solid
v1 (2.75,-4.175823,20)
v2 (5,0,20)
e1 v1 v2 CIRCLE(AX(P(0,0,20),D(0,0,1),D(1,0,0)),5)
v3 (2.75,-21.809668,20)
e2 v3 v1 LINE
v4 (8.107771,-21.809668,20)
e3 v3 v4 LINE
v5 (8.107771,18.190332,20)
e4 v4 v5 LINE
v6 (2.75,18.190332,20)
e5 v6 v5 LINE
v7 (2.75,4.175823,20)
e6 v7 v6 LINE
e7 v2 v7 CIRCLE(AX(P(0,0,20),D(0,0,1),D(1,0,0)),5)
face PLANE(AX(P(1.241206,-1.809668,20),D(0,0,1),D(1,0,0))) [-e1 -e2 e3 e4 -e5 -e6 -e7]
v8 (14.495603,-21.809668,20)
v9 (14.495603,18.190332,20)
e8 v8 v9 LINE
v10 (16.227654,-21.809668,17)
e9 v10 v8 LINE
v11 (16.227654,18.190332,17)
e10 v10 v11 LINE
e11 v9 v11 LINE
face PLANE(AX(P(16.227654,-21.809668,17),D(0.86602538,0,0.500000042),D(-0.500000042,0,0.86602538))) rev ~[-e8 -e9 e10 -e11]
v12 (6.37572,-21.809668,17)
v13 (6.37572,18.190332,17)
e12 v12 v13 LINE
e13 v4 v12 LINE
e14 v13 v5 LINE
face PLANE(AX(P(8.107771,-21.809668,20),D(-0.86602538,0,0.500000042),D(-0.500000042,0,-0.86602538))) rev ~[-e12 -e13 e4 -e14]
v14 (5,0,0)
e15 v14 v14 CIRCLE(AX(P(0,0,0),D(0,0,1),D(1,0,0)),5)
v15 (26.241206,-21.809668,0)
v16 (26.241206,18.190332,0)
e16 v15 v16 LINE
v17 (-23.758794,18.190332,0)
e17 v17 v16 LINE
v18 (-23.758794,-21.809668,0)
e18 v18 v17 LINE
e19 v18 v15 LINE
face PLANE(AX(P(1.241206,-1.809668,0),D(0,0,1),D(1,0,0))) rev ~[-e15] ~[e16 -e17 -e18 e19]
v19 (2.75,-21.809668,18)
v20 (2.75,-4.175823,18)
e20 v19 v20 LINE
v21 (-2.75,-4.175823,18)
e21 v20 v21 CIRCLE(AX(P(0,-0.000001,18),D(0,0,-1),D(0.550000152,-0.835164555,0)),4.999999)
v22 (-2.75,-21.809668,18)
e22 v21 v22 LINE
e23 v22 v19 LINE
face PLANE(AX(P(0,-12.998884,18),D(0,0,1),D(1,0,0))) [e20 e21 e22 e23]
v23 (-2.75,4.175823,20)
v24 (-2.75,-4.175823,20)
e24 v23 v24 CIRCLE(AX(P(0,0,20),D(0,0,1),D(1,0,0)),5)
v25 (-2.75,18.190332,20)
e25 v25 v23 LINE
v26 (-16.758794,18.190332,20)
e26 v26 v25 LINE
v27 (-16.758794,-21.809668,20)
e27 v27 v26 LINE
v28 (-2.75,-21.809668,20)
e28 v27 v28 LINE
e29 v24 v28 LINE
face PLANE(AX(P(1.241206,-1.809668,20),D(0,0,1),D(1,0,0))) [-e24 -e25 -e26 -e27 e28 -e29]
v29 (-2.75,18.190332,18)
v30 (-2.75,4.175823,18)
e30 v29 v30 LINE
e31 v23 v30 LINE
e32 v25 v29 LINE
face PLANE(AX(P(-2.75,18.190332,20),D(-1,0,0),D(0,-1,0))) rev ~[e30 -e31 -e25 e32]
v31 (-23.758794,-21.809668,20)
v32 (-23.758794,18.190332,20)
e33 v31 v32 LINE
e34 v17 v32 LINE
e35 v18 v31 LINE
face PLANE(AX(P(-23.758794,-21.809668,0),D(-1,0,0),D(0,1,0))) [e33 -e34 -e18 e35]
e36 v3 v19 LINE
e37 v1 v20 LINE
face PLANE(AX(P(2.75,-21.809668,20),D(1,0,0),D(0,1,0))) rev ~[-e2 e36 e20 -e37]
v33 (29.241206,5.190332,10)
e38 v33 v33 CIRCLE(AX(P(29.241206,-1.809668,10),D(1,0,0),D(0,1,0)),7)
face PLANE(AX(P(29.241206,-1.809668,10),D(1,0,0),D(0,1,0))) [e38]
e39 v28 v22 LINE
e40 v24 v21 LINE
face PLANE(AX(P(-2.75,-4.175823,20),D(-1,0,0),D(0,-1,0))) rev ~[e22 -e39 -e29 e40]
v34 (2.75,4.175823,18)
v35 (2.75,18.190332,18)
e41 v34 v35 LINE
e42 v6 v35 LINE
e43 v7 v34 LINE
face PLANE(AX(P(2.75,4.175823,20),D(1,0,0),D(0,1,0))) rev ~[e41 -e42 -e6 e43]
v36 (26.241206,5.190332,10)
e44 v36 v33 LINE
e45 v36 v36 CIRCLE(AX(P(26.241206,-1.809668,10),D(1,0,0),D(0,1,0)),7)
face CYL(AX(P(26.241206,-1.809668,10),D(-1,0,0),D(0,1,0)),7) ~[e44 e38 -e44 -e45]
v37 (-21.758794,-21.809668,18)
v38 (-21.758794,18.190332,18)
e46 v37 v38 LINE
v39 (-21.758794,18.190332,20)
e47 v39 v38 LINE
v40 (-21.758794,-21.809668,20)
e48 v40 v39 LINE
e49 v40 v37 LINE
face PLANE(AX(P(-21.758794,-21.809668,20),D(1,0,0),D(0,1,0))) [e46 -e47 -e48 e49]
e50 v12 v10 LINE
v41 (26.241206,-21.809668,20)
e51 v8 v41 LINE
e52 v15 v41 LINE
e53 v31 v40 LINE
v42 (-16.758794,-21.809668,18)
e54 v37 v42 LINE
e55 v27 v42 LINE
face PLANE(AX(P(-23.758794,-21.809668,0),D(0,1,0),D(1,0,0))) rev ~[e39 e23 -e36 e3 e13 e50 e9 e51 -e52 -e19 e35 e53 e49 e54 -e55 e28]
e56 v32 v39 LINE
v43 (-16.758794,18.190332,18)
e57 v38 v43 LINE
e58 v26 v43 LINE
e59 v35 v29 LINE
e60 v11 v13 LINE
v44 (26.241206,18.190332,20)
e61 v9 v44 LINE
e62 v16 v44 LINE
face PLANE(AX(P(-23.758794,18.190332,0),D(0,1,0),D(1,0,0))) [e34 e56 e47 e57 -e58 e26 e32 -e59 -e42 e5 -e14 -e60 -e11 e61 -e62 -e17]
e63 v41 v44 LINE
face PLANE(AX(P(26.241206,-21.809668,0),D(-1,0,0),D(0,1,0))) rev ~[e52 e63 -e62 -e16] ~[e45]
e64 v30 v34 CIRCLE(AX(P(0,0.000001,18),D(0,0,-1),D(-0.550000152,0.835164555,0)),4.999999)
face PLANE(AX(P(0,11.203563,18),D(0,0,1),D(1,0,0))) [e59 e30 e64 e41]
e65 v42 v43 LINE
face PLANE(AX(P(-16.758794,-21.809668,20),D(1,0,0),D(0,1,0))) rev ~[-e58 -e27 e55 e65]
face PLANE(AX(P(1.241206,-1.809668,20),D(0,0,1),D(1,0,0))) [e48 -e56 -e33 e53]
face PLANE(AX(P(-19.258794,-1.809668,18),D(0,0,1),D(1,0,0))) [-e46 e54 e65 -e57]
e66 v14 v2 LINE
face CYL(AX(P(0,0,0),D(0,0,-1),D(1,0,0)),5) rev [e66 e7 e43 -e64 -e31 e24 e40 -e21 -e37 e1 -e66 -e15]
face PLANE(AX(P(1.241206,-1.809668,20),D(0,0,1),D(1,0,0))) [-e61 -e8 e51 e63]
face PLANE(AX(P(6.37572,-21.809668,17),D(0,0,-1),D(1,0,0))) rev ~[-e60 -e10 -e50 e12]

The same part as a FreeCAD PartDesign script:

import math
import FreeCAD as App
import Part
import Sketcher
from FreeCAD import Vector
Q = App.Units.Quantity

doc = App.newDocument("Part")
body = doc.addObject("PartDesign::Body", "Body")

# Sketch on XY plane
sketch1 = doc.addObject("Sketcher::SketchObject", "Sketch")
body.addObject(sketch1)
sketch1.AttachmentSupport = (doc.XY_Plane, [""])
sketch1.MapMode = "FlatFace"
sketch1.addGeometry([
    Part.LineSegment(Vector(-24, 18, 0), Vector(-24, -22, 0)),  # 0
    Part.LineSegment(Vector(-24, -22, 0), Vector(26, -22, 0)),  # 1
    Part.LineSegment(Vector(26, -22, 0), Vector(26, 18, 0)),  # 2
    Part.LineSegment(Vector(26, 18, 0), Vector(-24, 18, 0)),  # 3
    Part.Circle(Vector(0, 0, 0), Vector(0, 0, 1), 5),  # 4
], False)
sketch1.addConstraint([
    Sketcher.Constraint("Coincident", 0, 2, 1, 1),
    Sketcher.Constraint("Coincident", 1, 2, 2, 1),
    Sketcher.Constraint("Coincident", 2, 2, 3, 1),
    Sketcher.Constraint("Coincident", 3, 2, 0, 1),
    Sketcher.Constraint("Vertical", 0),
    Sketcher.Constraint("Horizontal", 1),
    Sketcher.Constraint("Vertical", 2),
    Sketcher.Constraint("Horizontal", 3),
    Sketcher.Constraint("Coincident", 4, 3, -1, 1),
    Sketcher.Constraint("Diameter", 4, 10.0),
    Sketcher.Constraint("DistanceX", 1, 1, 1, 2, 50.0),
    Sketcher.Constraint("DistanceY", 0, 2, 0, 1, 40.0),
    Sketcher.Constraint("DistanceX", 0, 2, -1, 1, 23.758794),
    Sketcher.Constraint("DistanceY", 0, 2, -1, 1, 21.809668),
])
pad1 = doc.addObject("PartDesign::Pad", "Pad")
body.addObject(pad1)
pad1.Profile = sketch1
pad1.Length = 20

# Sketch on XY plane
sketch2 = doc.addObject("Sketcher::SketchObject", "Sketch001")
body.addObject(sketch2)
sketch2.AttachmentSupport = (doc.XY_Plane, [""])
sketch2.MapMode = "FlatFace"
sketch2.AttachmentOffset = App.Placement(Vector(0, 0, 20), App.Rotation())
sketch2.addGeometry([
    Part.LineSegment(Vector(-21.8, 18.2, 0), Vector(-21.8, -21.8, 0)),  # 0
    Part.LineSegment(Vector(-21.8, -21.8, 0), Vector(-16.8, -21.8, 0)),  # 1
    Part.LineSegment(Vector(-16.8, -21.8, 0), Vector(-16.8, 18.2, 0)),  # 2
    Part.LineSegment(Vector(-16.8, 18.2, 0), Vector(-21.8, 18.2, 0)),  # 3
    Part.LineSegment(Vector(-2.8, -4.2, 0), Vector(-2.8, -21.8, 0)),  # 4
    Part.LineSegment(Vector(-2.8, -21.8, 0), Vector(2.8, -21.8, 0)),  # 5
    Part.LineSegment(Vector(2.8, -21.8, 0), Vector(2.8, -4.2, 0)),  # 6
    Part.ArcOfCircle(Part.Circle(Vector(0, 0, 0), Vector(0, 0, 1), 5), math.radians(-123), math.radians(-57)),  # 7
    Part.LineSegment(Vector(2.8, 18.2, 0), Vector(-2.8, 18.2, 0)),  # 8
    Part.LineSegment(Vector(-2.8, 18.2, 0), Vector(-2.8, 4.2, 0)),  # 9
    Part.ArcOfCircle(Part.Circle(Vector(0, 0, 0), Vector(0, 0, 1), 5), math.radians(57), math.radians(123)),  # 10
    Part.LineSegment(Vector(2.8, 4.2, 0), Vector(2.8, 18.2, 0)),  # 11
], False)
sketch2.addConstraint([
    Sketcher.Constraint("Coincident", 0, 2, 1, 1),
    Sketcher.Constraint("Coincident", 1, 2, 2, 1),
    Sketcher.Constraint("Coincident", 2, 2, 3, 1),
    Sketcher.Constraint("Coincident", 3, 2, 0, 1),
    Sketcher.Constraint("Coincident", 4, 2, 5, 1),
    Sketcher.Constraint("Coincident", 5, 2, 6, 1),
    Sketcher.Constraint("Coincident", 6, 2, 7, 2),
    Sketcher.Constraint("Coincident", 7, 1, 4, 1),
    Sketcher.Constraint("Coincident", 8, 2, 9, 1),
    Sketcher.Constraint("Coincident", 9, 2, 10, 2),
    Sketcher.Constraint("Coincident", 10, 1, 11, 1),
    Sketcher.Constraint("Coincident", 11, 2, 8, 1),
    Sketcher.Constraint("Vertical", 0),
    Sketcher.Constraint("Horizontal", 1),
    Sketcher.Constraint("Vertical", 2),
    Sketcher.Constraint("Horizontal", 3),
    Sketcher.Constraint("Vertical", 4),
    Sketcher.Constraint("Horizontal", 5),
    Sketcher.Constraint("Vertical", 6),
    Sketcher.Constraint("Horizontal", 8),
    Sketcher.Constraint("Vertical", 9),
    Sketcher.Constraint("Vertical", 11),
    Sketcher.Constraint("Coincident", 7, 3, -1, 1),
    Sketcher.Constraint("Coincident", 10, 3, -1, 1),
    Sketcher.Constraint("Equal", 7, 10),
    Sketcher.Constraint("Horizontal", 1, 2, 4, 2),
    Sketcher.Constraint("Horizontal", 6, 2, 7, 1),
    Sketcher.Constraint("Horizontal", 3, 2, 8, 2),
    Sketcher.Constraint("Horizontal", 9, 2, 10, 1),
    Sketcher.Constraint("Vertical", 7, 1, 8, 2),
    Sketcher.Constraint("Radius", 7, 4.999999),
    Sketcher.Constraint("DistanceX", 1, 1, 1, 2, 5.0),
    Sketcher.Constraint("DistanceY", 0, 2, 0, 1, 40.0),
    Sketcher.Constraint("DistanceX", 5, 1, 5, 2, 5.5),
    Sketcher.Constraint("DistanceY", 9, 2, 9, 1, 14.014509),
    Sketcher.Constraint("DistanceX", 0, 2, -1, 1, 21.758794),
])
pocket1 = doc.addObject("PartDesign::Pocket", "Pocket")
body.addObject(pocket1)
pocket1.Profile = sketch2
pocket1.Length = 2

# Sketch on XZ plane
sketch3 = doc.addObject("Sketcher::SketchObject", "Sketch002")
body.addObject(sketch3)
sketch3.AttachmentSupport = (doc.XZ_Plane, [""])
sketch3.MapMode = "FlatFace"
sketch3.AttachmentOffset = App.Placement(Vector(0, 0, 21.809668), App.Rotation())
sketch3.addGeometry([
    Part.LineSegment(Vector(14.5, 20, 0), Vector(8.1, 20, 0)),
    Part.LineSegment(Vector(8.1, 20, 0), Vector(6.4, 17, 0)),
    Part.LineSegment(Vector(6.4, 17, 0), Vector(16.2, 17, 0)),
    Part.LineSegment(Vector(16.2, 17, 0), Vector(14.5, 20, 0)),
], False)
sketch3.addConstraint([
    Sketcher.Constraint("Coincident", 0, 2, 1, 1),
    Sketcher.Constraint("Coincident", 1, 2, 2, 1),
    Sketcher.Constraint("Coincident", 2, 2, 3, 1),
    Sketcher.Constraint("Coincident", 3, 2, 0, 1),
    Sketcher.Constraint("Horizontal", 0),
    Sketcher.Constraint("Horizontal", 2),
    Sketcher.Constraint("Equal", 1, 3),
    Sketcher.Constraint("Angle", 1, Q("-120.000003 deg")),
    Sketcher.Constraint("DistanceY", -1, 1, 0, 2, 20.0),
    Sketcher.Constraint("DistanceY", -1, 1, 1, 2, 17.0),
    Sketcher.Constraint("DistanceX", 0, 2, 0, 1, 6.387832),
    Sketcher.Constraint("DistanceX", -1, 1, 0, 2, 8.107771),
])
pocket2 = doc.addObject("PartDesign::Pocket", "Pocket001")
body.addObject(pocket2)
pocket2.Profile = sketch3
pocket2.Type = "ThroughAll"

# Sketch on YZ plane
sketch4 = doc.addObject("Sketcher::SketchObject", "Sketch003")
body.addObject(sketch4)
sketch4.AttachmentSupport = (doc.YZ_Plane, [""])
sketch4.MapMode = "FlatFace"
sketch4.AttachmentOffset = App.Placement(Vector(0, 0, 26.241206), App.Rotation())
sketch4.addGeometry(Part.Circle(Vector(-2, 10, 0), Vector(0, 0, 1), 7), False)
sketch4.addConstraint([
    Sketcher.Constraint("Diameter", 0, 14.0),
    Sketcher.Constraint("DistanceY", -1, 1, 0, 3, 10.0),
    Sketcher.Constraint("DistanceX", 0, 3, -1, 1, 1.809668),
])
pad2 = doc.addObject("PartDesign::Pad", "Pad001")
body.addObject(pad2)
pad2.Profile = sketch4
pad2.Length = 3

doc.recompute()
